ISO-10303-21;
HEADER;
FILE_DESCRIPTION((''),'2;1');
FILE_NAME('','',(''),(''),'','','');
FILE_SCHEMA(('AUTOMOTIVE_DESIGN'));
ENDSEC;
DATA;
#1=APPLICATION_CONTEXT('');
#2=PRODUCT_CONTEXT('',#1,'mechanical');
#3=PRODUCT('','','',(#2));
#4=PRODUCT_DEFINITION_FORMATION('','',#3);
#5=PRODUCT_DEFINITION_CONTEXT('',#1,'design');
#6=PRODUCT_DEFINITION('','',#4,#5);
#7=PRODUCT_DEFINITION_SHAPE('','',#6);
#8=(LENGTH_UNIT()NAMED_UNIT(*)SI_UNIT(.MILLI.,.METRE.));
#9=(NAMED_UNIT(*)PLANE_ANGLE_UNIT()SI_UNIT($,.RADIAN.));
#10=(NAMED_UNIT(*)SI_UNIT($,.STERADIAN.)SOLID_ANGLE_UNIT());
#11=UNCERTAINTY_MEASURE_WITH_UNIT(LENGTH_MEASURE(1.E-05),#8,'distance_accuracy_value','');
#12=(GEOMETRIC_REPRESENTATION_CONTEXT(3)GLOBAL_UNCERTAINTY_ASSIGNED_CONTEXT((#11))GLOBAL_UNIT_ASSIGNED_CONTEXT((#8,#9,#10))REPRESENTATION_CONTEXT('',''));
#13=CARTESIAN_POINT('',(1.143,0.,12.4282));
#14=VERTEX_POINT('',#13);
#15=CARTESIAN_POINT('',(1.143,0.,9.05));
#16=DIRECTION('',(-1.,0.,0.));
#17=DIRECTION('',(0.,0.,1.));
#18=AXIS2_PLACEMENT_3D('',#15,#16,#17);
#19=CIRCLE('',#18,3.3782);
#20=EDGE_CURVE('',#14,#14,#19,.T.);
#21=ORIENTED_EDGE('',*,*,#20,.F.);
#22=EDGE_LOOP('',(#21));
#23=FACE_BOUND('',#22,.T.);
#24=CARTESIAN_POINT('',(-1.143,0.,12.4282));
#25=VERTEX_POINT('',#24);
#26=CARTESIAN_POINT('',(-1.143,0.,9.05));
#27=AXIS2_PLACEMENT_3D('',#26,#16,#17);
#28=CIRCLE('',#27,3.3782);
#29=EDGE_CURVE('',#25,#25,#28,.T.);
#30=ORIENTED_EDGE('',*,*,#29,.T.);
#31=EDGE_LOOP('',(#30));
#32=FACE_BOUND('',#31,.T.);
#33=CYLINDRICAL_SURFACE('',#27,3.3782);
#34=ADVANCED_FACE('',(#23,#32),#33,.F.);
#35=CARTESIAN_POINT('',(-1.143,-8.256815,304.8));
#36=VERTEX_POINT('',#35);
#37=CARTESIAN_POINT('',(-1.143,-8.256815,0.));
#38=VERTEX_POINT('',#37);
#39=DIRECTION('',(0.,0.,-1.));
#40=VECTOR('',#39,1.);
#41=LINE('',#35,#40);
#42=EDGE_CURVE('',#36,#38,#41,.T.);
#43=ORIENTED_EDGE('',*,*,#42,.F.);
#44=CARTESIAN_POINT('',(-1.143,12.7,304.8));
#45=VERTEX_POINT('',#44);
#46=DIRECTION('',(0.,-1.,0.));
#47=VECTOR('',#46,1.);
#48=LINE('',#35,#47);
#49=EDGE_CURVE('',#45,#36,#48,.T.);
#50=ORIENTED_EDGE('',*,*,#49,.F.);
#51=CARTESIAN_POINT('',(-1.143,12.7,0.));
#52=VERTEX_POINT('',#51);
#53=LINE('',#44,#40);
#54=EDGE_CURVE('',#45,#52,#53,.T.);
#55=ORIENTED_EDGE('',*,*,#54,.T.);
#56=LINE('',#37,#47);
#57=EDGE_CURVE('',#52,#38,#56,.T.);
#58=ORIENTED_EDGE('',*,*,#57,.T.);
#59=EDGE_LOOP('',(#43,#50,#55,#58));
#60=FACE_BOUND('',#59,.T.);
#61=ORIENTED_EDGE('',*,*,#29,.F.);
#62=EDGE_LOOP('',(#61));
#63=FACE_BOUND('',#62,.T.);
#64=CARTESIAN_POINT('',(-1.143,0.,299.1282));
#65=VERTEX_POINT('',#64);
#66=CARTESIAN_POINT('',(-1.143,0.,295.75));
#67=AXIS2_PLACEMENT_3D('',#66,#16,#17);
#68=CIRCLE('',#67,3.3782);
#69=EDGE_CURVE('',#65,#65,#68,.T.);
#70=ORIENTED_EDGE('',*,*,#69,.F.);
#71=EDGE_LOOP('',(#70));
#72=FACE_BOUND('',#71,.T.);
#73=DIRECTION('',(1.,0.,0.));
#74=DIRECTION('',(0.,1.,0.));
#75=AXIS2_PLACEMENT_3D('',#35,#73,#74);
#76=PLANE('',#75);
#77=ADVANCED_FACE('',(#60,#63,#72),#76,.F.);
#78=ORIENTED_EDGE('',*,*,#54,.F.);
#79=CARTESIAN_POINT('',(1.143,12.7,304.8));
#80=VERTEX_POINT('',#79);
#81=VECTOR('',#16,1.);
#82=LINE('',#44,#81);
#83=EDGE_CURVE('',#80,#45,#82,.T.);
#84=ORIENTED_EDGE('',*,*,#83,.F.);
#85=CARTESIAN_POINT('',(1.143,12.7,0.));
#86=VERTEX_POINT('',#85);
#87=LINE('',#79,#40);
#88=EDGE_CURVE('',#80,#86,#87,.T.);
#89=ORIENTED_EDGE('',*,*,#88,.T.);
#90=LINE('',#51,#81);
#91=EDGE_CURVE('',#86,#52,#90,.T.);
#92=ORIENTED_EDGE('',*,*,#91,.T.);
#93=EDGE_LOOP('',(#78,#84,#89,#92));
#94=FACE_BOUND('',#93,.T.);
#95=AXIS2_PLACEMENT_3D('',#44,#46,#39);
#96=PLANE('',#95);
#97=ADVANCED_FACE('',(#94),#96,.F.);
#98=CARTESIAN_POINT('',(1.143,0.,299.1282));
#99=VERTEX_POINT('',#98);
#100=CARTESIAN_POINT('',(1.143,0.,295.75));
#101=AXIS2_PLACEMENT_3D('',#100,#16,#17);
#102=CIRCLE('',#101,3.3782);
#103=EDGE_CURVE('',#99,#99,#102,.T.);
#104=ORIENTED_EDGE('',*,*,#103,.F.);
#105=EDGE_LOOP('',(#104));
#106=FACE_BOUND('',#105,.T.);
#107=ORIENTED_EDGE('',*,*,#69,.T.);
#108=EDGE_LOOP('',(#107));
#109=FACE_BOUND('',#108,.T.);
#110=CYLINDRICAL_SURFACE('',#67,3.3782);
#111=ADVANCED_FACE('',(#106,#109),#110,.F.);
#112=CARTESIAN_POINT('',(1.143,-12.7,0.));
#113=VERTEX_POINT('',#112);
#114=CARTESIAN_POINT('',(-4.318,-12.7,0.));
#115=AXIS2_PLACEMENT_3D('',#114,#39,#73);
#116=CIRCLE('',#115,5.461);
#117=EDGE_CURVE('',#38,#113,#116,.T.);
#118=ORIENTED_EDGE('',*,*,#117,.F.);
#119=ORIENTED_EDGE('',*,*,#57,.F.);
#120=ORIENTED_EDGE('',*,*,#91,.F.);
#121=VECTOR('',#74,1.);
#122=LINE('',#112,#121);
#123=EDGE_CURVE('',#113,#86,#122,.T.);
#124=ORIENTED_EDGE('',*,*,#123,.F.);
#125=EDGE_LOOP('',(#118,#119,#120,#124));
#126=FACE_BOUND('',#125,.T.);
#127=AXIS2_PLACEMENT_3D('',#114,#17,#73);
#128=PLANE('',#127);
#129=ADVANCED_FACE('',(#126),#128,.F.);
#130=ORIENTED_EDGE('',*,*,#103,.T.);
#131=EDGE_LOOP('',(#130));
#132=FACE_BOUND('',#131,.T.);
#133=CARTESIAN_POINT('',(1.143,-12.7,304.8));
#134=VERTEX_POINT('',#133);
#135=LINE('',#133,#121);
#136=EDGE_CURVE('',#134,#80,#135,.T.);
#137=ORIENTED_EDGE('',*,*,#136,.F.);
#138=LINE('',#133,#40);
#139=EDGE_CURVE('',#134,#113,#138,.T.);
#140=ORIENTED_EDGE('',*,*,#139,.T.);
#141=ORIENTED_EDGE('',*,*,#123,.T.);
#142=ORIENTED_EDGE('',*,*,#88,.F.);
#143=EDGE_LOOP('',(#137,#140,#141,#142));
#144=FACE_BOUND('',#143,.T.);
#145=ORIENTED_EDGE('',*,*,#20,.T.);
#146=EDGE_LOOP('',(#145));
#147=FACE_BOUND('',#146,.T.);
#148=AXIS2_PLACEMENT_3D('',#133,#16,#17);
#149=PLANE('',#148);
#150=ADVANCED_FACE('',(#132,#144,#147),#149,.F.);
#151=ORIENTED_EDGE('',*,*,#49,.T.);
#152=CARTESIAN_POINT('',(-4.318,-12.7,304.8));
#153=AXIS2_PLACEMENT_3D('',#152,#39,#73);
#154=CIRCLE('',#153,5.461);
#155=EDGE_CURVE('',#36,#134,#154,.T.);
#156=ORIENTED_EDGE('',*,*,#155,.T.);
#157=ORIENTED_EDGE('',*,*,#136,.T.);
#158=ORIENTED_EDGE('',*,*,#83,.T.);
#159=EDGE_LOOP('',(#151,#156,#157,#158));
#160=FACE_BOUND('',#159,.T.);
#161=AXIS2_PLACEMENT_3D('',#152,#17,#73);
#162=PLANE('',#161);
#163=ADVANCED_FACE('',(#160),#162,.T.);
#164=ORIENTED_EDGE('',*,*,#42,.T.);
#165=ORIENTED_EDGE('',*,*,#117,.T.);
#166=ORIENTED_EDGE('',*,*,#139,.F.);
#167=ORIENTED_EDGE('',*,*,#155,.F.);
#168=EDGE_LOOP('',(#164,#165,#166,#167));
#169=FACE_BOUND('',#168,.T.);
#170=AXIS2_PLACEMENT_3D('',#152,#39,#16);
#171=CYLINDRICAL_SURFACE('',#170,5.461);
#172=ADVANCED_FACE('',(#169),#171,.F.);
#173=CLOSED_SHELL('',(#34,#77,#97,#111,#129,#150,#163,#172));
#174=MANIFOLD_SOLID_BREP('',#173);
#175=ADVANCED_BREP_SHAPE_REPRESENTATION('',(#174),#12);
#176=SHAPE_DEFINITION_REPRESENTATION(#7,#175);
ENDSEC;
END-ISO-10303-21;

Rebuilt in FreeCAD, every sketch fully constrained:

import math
import FreeCAD as App
import Part
import Sketcher
Q = App.Units.Quantity

doc = App.newDocument("Part")
params = doc.addObject("Spreadsheet::Sheet", "Params")
for row, (alias, value) in enumerate([
    ("sketch1_height", "1 in"),
    ("sketch1_radius", "0.215 in"),
    ("sketch1_width", "0.09 in"),
    ("pad1_length", "12 in"),
    ("sketch2_diameter", "0.266 in"),
    ("hole_diameter", "0.266 in"),
], start=1):
    params.set(f"A{row}", alias)
    params.set(f"B{row}", "=" + value)
    params.setAlias(f"B{row}", alias)

body = doc.addObject("PartDesign::Body", "Body")

# Sketch on XY plane
sketch1 = body.newObject("Sketcher::SketchObject", "Sketch")
sketch1.AttachmentSupport = (doc.getObject("XY_Plane"), [""])
sketch1.MapMode = "FlatFace"
sketch1.addGeometry(Part.LineSegment(App.Vector(-1.1, 12.7, 0), App.Vector(-1.1, -8.3, 0)), False)
sketch1.addGeometry(Part.ArcOfCircle(Part.Circle(App.Vector(-4.3, -12.7, 0), App.Vector(0, 0, 1), 5.5), math.radians(0), math.radians(54)), False)
sketch1.addGeometry(Part.LineSegment(App.Vector(1.1, -12.7, 0), App.Vector(1.1, 12.7, 0)), False)
sketch1.addGeometry(Part.LineSegment(App.Vector(1.1, 12.7, 0), App.Vector(-1.1, 12.7, 0)), False)
sketch1.addConstraint(Sketcher.Constraint("Coincident", 0, 2, 1, 2))
sketch1.addConstraint(Sketcher.Constraint("Tangent", 1, 1, 2, 1))
sketch1.addConstraint(Sketcher.Constraint("Coincident", 2, 2, 3, 1))
sketch1.addConstraint(Sketcher.Constraint("Coincident", 3, 2, 0, 1))
sketch1.addConstraint(Sketcher.Constraint("Vertical", 0))
sketch1.addConstraint(Sketcher.Constraint("Vertical", 2))
sketch1.addConstraint(Sketcher.Constraint("Horizontal", 3))
sketch1.addConstraint(Sketcher.Constraint("Symmetric", 1, 1, 3, 2, -1, 1))
sketch1.addConstraint(Sketcher.Constraint("DistanceY", 2, 1, 2, 2, Q("1 in")))
sketch1.addConstraint(Sketcher.Constraint("Radius", 1, Q("0.215 in")))
sketch1.addConstraint(Sketcher.Constraint("DistanceX", 3, 2, 3, 1, Q("0.09 in")))
sketch1.setExpression("Constraints[8]", "Params.sketch1_height")
sketch1.setExpression("Constraints[9]", "Params.sketch1_radius")
sketch1.setExpression("Constraints[10]", "Params.sketch1_width")
pad1 = body.newObject("PartDesign::Pad", "Pad")
pad1.Profile = sketch1
pad1.setExpression("Length", "Params.pad1_length")

# Sketch on YZ plane
sketch2 = body.newObject("Sketcher::SketchObject", "Sketch001")
sketch2.AttachmentSupport = (doc.getObject("YZ_Plane"), [""])
sketch2.MapMode = "FlatFace"
sketch2.AttachmentOffset = App.Placement(App.Vector(0, 0, -0.045 * 25.4), App.Rotation())
sketch2.addGeometry(Part.Circle(App.Vector(0, 9.1, 0), App.Vector(0, 0, 1), 3.4), False)
sketch2.addGeometry(Part.Circle(App.Vector(0, 295.7, 0), App.Vector(0, 0, 1), 3.4), False)
sketch2.addConstraint(Sketcher.Constraint("Equal", 0, 1))
sketch2.addConstraint(Sketcher.Constraint("PointOnObject", 0, 3, -2))
sketch2.addConstraint(Sketcher.Constraint("PointOnObject", 1, 3, -2))
sketch2.addConstraint(Sketcher.Constraint("Diameter", 0, Q("0.266 in")))
sketch2.addConstraint(Sketcher.Constraint("DistanceY", -1, 1, 0, 3, Q("9.05 mm")))
sketch2.addConstraint(Sketcher.Constraint("DistanceY", -1, 1, 1, 3, Q("295.75 mm")))
sketch2.setExpression("Constraints[3]", "Params.sketch2_diameter")
doc.recompute()
hole = body.newObject("PartDesign::Hole", "Hole")
hole.Profile = sketch2
hole.ThreadType = "None"
hole.setExpression("Diameter", "Params.hole_diameter")
hole.DepthType = "ThroughAll"
hole.Reversed = True

doc.recompute()
